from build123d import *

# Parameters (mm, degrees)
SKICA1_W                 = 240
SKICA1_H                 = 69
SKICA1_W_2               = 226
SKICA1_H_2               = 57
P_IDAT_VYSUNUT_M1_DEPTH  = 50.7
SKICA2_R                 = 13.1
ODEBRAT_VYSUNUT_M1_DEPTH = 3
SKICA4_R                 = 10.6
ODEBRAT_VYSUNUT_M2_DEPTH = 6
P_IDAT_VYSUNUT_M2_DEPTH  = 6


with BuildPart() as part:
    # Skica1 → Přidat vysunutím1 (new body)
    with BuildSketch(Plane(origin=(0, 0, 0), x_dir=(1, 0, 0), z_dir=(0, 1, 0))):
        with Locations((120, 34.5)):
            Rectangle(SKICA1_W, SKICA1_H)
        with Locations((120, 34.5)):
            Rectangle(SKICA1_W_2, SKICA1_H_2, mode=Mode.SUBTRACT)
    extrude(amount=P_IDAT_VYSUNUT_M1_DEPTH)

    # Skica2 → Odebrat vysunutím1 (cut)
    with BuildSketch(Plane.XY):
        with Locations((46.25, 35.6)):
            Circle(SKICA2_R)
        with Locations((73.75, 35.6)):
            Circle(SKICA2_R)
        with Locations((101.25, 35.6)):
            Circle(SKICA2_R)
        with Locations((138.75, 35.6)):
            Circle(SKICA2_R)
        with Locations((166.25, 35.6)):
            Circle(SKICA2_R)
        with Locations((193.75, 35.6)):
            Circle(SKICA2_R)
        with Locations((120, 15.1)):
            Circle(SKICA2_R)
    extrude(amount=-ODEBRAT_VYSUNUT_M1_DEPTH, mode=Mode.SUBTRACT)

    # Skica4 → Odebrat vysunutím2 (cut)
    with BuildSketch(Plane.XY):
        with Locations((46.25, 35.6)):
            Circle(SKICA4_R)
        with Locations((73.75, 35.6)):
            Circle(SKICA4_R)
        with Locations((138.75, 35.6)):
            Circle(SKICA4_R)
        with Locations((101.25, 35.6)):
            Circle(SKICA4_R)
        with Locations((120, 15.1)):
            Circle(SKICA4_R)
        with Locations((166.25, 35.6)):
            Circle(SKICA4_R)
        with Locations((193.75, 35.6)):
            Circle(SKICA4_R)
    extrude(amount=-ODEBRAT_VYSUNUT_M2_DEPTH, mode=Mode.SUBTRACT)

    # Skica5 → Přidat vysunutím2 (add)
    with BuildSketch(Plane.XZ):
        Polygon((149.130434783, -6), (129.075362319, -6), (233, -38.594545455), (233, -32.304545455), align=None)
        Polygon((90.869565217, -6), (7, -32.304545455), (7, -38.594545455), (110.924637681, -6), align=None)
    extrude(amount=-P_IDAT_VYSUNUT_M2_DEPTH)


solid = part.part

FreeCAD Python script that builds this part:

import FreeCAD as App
import Part
import Sketcher
from FreeCAD import Vector
Q = App.Units.Quantity


def add_polygon(sketch, points):
    """Adds a closed chain of lines whose ends are joined by coincident constraints."""
    first, n = sketch.GeometryCount, len(points)
    for a, b in zip(points, points[1:] + points[:1]):
        sketch.addGeometry(Part.LineSegment(App.Vector(*a, 0), App.Vector(*b, 0)), False)
    for i in range(n):
        sketch.addConstraint(Sketcher.Constraint("Coincident", first + i, 2, first + (i + 1) % n, 1))

doc = App.newDocument("Part")
body = doc.addObject("PartDesign::Body", "Body")

# Sketch on XZ plane
sketch1 = body.newObject("Sketcher::SketchObject", "Sketch")
sketch1.AttachmentSupport = (doc.getObject("XZ_Plane"), [""])
sketch1.MapMode = "FlatFace"
add_polygon(sketch1, [(0, -69), (0, 0), (240, 0), (240, -69)])  # lines 0-3
add_polygon(sketch1, [(233, -6), (7, -6), (7, -63), (233, -63)])  # lines 4-7
sketch1.addConstraint(Sketcher.Constraint("Vertical", 0))
sketch1.addConstraint(Sketcher.Constraint("Horizontal", 1))
sketch1.addConstraint(Sketcher.Constraint("Vertical", 2))
sketch1.addConstraint(Sketcher.Constraint("Horizontal", 3))
sketch1.addConstraint(Sketcher.Constraint("Horizontal", 4))
sketch1.addConstraint(Sketcher.Constraint("Vertical", 5))
sketch1.addConstraint(Sketcher.Constraint("Horizontal", 6))
sketch1.addConstraint(Sketcher.Constraint("Vertical", 7))
sketch1.addConstraint(Sketcher.Constraint("Coincident", 0, 2, -1, 1))
sketch1.addConstraint(Sketcher.Constraint("DistanceX", 1, 1, 1, 2, Q("240 mm")))
sketch1.addConstraint(Sketcher.Constraint("DistanceX", 4, 2, 4, 1, Q("226 mm")))
sketch1.addConstraint(Sketcher.Constraint("DistanceY", 0, 1, 0, 2, Q("69 mm")))
sketch1.addConstraint(Sketcher.Constraint("DistanceY", 5, 2, 5, 1, Q("57 mm")))
sketch1.addConstraint(Sketcher.Constraint("DistanceX", -1, 1, 4, 2, Q("7 mm")))
sketch1.addConstraint(Sketcher.Constraint("DistanceY", 4, 2, -1, 1, Q("6 mm")))
pad1 = body.newObject("PartDesign::Pad", "Pad")
pad1.Profile = sketch1
pad1.Length = 50.7
pad1.Reversed = True

# Sketch on XY plane
sketch2 = body.newObject("Sketcher::SketchObject", "Sketch001")
sketch2.AttachmentSupport = (doc.getObject("XY_Plane"), [""])
sketch2.MapMode = "FlatFace"
sketch2.addGeometry(Part.Circle(Vector(46.25, 35.6, 0), Vector(0, 0, 1), 13.1), False)
sketch2.addGeometry(Part.Circle(Vector(73.75, 35.6, 0), Vector(0, 0, 1), 13.1), False)
sketch2.addGeometry(Part.Circle(Vector(101.25, 35.6, 0), Vector(0, 0, 1), 13.1), False)
sketch2.addGeometry(Part.Circle(Vector(138.75, 35.6, 0), Vector(0, 0, 1), 13.1), False)
sketch2.addGeometry(Part.Circle(Vector(166.25, 35.6, 0), Vector(0, 0, 1), 13.1), False)
sketch2.addGeometry(Part.Circle(Vector(193.75, 35.6, 0), Vector(0, 0, 1), 13.1), False)
sketch2.addGeometry(Part.Circle(Vector(120, 15.1, 0), Vector(0, 0, 1), 13.1), False)
sketch2.addConstraint(Sketcher.Constraint("Equal", 0, 1))
sketch2.addConstraint(Sketcher.Constraint("Equal", 1, 2))
sketch2.addConstraint(Sketcher.Constraint("Equal", 2, 3))
sketch2.addConstraint(Sketcher.Constraint("Equal", 3, 4))
sketch2.addConstraint(Sketcher.Constraint("Equal", 4, 5))
sketch2.addConstraint(Sketcher.Constraint("Equal", 5, 6))
sketch2.addConstraint(Sketcher.Constraint("Horizontal", 0, 3, 1, 3))
sketch2.addConstraint(Sketcher.Constraint("Horizontal", 1, 3, 2, 3))
sketch2.addConstraint(Sketcher.Constraint("Horizontal", 2, 3, 3, 3))
sketch2.addConstraint(Sketcher.Constraint("Horizontal", 3, 3, 4, 3))
sketch2.addConstraint(Sketcher.Constraint("Horizontal", 4, 3, 5, 3))
sketch2.addConstraint(Sketcher.Constraint("Diameter", 0, Q("26.2 mm")))
sketch2.addConstraint(Sketcher.Constraint("DistanceX", -1, 1, 6, 3, Q("120 mm")))
sketch2.addConstraint(Sketcher.Constraint("DistanceX", 0, 3, 2, 3, Q("55 mm")))
sketch2.addConstraint(Sketcher.Constraint("DistanceX", 1, 3, 3, 3, Q("65 mm")))
sketch2.addConstraint(Sketcher.Constraint("DistanceX", 2, 3, 4, 3, Q("65 mm")))
sketch2.addConstraint(Sketcher.Constraint("DistanceX", 3, 3, 5, 3, Q("55 mm")))
sketch2.addConstraint(Sketcher.Constraint("DistanceY", -1, 1, 0, 3, Q("35.6 mm")))
sketch2.addConstraint(Sketcher.Constraint("DistanceY", -1, 1, 6, 3, Q("15.1 mm")))
sketch2.addConstraint(Sketcher.Constraint("DistanceX", 0, 3, 1, 3, Q("27.5 mm")))
sketch2.addConstraint(Sketcher.Constraint("DistanceX", -1, 1, 0, 3, Q("46.25 mm")))
pocket1 = body.newObject("PartDesign::Pocket", "Pocket")
pocket1.Profile = sketch2
pocket1.Length = 3

# Sketch on XY plane
sketch3 = body.newObject("Sketcher::SketchObject", "Sketch002")
sketch3.AttachmentSupport = (doc.getObject("XY_Plane"), [""])
sketch3.MapMode = "FlatFace"
sketch3.addGeometry(Part.Circle(Vector(46.25, 35.6, 0), Vector(0, 0, 1), 10.6), False)
sketch3.addGeometry(Part.Circle(Vector(73.75, 35.6, 0), Vector(0, 0, 1), 10.6), False)
sketch3.addGeometry(Part.Circle(Vector(138.75, 35.6, 0), Vector(0, 0, 1), 10.6), False)
sketch3.addGeometry(Part.Circle(Vector(101.25, 35.6, 0), Vector(0, 0, 1), 10.6), False)
sketch3.addGeometry(Part.Circle(Vector(120, 15.1, 0), Vector(0, 0, 1), 10.6), False)
sketch3.addGeometry(Part.Circle(Vector(166.25, 35.6, 0), Vector(0, 0, 1), 10.6), False)
sketch3.addGeometry(Part.Circle(Vector(193.75, 35.6, 0), Vector(0, 0, 1), 10.6), False)
sketch3.addConstraint(Sketcher.Constraint("Equal", 0, 1))
sketch3.addConstraint(Sketcher.Constraint("Equal", 1, 2))
sketch3.addConstraint(Sketcher.Constraint("Equal", 2, 3))
sketch3.addConstraint(Sketcher.Constraint("Equal", 3, 4))
sketch3.addConstraint(Sketcher.Constraint("Equal", 4, 5))
sketch3.addConstraint(Sketcher.Constraint("Equal", 5, 6))
sketch3.addConstraint(Sketcher.Constraint("Horizontal", 0, 3, 1, 3))
sketch3.addConstraint(Sketcher.Constraint("Horizontal", 1, 3, 2, 3))
sketch3.addConstraint(Sketcher.Constraint("Horizontal", 2, 3, 3, 3))
sketch3.addConstraint(Sketcher.Constraint("Horizontal", 3, 3, 5, 3))
sketch3.addConstraint(Sketcher.Constraint("Horizontal", 5, 3, 6, 3))
sketch3.addConstraint(Sketcher.Constraint("Diameter", 0, Q("21.2 mm")))
sketch3.addConstraint(Sketcher.Constraint("DistanceX", -1, 1, 4, 3, Q("120 mm")))
sketch3.addConstraint(Sketcher.Constraint("DistanceX", 1, 3, 2, 3, Q("65 mm")))
sketch3.addConstraint(Sketcher.Constraint("DistanceX", 0, 3, 3, 3, Q("55 mm")))
sketch3.addConstraint(Sketcher.Constraint("DistanceX", 3, 3, 5, 3, Q("65 mm")))
sketch3.addConstraint(Sketcher.Constraint("DistanceX", 2, 3, 6, 3, Q("55 mm")))
sketch3.addConstraint(Sketcher.Constraint("DistanceY", -1, 1, 0, 3, Q("35.6 mm")))
sketch3.addConstraint(Sketcher.Constraint("DistanceY", -1, 1, 4, 3, Q("15.1 mm")))
sketch3.addConstraint(Sketcher.Constraint("DistanceX", 0, 3, 1, 3, Q("27.5 mm")))
sketch3.addConstraint(Sketcher.Constraint("DistanceX", -1, 1, 0, 3, Q("46.25 mm")))
pocket2 = body.newObject("PartDesign::Pocket", "Pocket001")
pocket2.Profile = sketch3
pocket2.Length = 6

# Sketch on XZ plane
sketch4 = body.newObject("Sketcher::SketchObject", "Sketch003")
sketch4.AttachmentSupport = (doc.getObject("XZ_Plane"), [""])
sketch4.MapMode = "FlatFace"
add_polygon(sketch4, [(149.130435, -6), (129.075362, -6), (233, -38.594545), (233, -32.304545)])  # lines 0-3
add_polygon(sketch4, [(90.869565, -6), (7, -32.304545), (7, -38.594545), (110.924638, -6)])  # lines 4-7
sketch4.addConstraint(Sketcher.Constraint("Horizontal", 0))
sketch4.addConstraint(Sketcher.Constraint("Vertical", 2))
sketch4.addConstraint(Sketcher.Constraint("Vertical", 5))
sketch4.addConstraint(Sketcher.Constraint("Horizontal", 7))
sketch4.addConstraint(Sketcher.Constraint("Parallel", 1, 3))
sketch4.addConstraint(Sketcher.Constraint("Parallel", 4, 6))
sketch4.addConstraint(Sketcher.Constraint("Horizontal", 2, 2, 4, 2))
sketch4.addConstraint(Sketcher.Constraint("Horizontal", 1, 2, 5, 2))
sketch4.addConstraint(Sketcher.Constraint("Horizontal", 3, 2, 6, 2))
sketch4.addConstraint(Sketcher.Constraint("Equal", 0, 7))
sketch4.addConstraint(Sketcher.Constraint("DistanceY", 0, 2, -1, 1, Q("6 mm")))
sketch4.addConstraint(Sketcher.Constraint("DistanceX", -1, 1, 1, 2, Q("233 mm")))
sketch4.addConstraint(Sketcher.Constraint("DistanceX", -1, 1, 4, 2, Q("7 mm")))
sketch4.addConstraint(Sketcher.Constraint("DistanceY", 2, 1, 2, 2, Q("6.29 mm")))
sketch4.addConstraint(Sketcher.Constraint("DistanceX", 0, 2, 0, 1, Q("20.055072 mm")))
sketch4.addConstraint(Sketcher.Constraint("DistanceX", 7, 2, 3, 2, Q("58.26087 mm")))
pad2 = body.newObject("PartDesign::Pad", "Pad001")
pad2.Profile = sketch4
pad2.Length = 6
pad2.Reversed = True

doc.recompute()
